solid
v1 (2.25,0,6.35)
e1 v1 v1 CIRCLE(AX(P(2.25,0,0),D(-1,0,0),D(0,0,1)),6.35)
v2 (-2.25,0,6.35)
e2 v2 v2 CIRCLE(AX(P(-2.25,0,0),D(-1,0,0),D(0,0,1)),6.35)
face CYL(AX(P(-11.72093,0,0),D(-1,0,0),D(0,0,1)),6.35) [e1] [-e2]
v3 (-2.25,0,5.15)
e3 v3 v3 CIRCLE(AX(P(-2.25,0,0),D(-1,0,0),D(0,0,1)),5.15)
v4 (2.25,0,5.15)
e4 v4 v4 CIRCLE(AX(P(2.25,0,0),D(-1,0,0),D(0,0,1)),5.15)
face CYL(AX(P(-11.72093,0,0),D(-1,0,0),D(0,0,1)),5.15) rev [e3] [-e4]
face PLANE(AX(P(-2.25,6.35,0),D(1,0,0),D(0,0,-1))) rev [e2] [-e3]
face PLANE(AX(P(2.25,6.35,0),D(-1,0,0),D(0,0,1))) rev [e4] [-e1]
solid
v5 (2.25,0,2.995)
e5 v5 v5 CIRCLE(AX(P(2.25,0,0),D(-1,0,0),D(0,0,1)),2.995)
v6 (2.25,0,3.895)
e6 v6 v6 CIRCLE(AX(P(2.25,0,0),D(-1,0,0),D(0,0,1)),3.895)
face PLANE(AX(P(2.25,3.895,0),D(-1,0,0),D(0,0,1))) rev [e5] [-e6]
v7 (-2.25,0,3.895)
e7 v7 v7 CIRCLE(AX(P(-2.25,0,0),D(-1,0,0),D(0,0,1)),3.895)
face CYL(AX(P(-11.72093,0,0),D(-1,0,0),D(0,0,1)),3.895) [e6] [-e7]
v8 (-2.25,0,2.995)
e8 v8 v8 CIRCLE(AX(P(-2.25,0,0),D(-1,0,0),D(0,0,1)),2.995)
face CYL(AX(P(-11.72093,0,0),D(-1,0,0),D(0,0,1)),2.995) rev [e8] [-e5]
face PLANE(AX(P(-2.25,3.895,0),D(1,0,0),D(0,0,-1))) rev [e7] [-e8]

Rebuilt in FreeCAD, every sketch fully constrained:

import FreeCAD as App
import Part
import Sketcher

doc = App.newDocument("Part")
params = doc.addObject("Spreadsheet::Sheet", "Params")
for row, (alias, value) in enumerate([
    ("sketch1_width", "4.5 mm"),
    ("sketch1_height", "1.2 mm"),
    ("sketch1_height2", "0.9 mm"),
    ("revolution_angle", "360 deg"),
], start=1):
    params.set(f"A{row}", alias)
    params.set(f"B{row}", "=" + value)
    params.setAlias(f"B{row}", alias)

body = doc.addObject("PartDesign::Body", "Body")
body.AllowCompound = True

sketch1 = body.newObject("Sketcher::SketchObject", "Sketch")
sketch1.AttachmentSupport = (doc.getObject("XY_Plane"), [""])
sketch1.MapMode = "FlatFace"
sketch1.addGeometry([
    Part.LineSegment(App.Vector(-2.25, 6.35, 0), App.Vector(-2.25, 5.15, 0)),
    Part.LineSegment(App.Vector(-2.25, 5.15, 0), App.Vector(2.25, 5.15, 0)),
    Part.LineSegment(App.Vector(2.25, 5.15, 0), App.Vector(2.25, 6.35, 0)),
    Part.LineSegment(App.Vector(2.25, 6.35, 0), App.Vector(-2.25, 6.35, 0)),
    Part.LineSegment(App.Vector(-2.25, 3.895, 0), App.Vector(-2.25, 2.995, 0)),
    Part.LineSegment(App.Vector(-2.25, 2.995, 0), App.Vector(2.25, 2.995, 0)),
    Part.LineSegment(App.Vector(2.25, 2.995, 0), App.Vector(2.25, 3.895, 0)),
    Part.LineSegment(App.Vector(2.25, 3.895, 0), App.Vector(-2.25, 3.895, 0)),
], False)
sketch1.addConstraint([
    Sketcher.Constraint("Coincident", 0, 2, 1, 1),
    Sketcher.Constraint("Coincident", 1, 2, 2, 1),
    Sketcher.Constraint("Coincident", 2, 2, 3, 1),
    Sketcher.Constraint("Coincident", 3, 2, 0, 1),
    Sketcher.Constraint("Coincident", 4, 2, 5, 1),
    Sketcher.Constraint("Coincident", 5, 2, 6, 1),
    Sketcher.Constraint("Coincident", 6, 2, 7, 1),
    Sketcher.Constraint("Coincident", 7, 2, 4, 1),
    Sketcher.Constraint("Vertical", 0),
    Sketcher.Constraint("Horizontal", 1),
    Sketcher.Constraint("Vertical", 2),
    Sketcher.Constraint("Horizontal", 3),
    Sketcher.Constraint("Vertical", 4),
    Sketcher.Constraint("Horizontal", 5),
    Sketcher.Constraint("Vertical", 6),
    Sketcher.Constraint("Horizontal", 7),
    Sketcher.Constraint("Vertical", 3, 2, 4, 2),
    Sketcher.Constraint("Vertical", 2, 2, 5, 2),
    Sketcher.Constraint("DistanceX", 1, 1, 1, 2, 4.5),
    Sketcher.Constraint("DistanceY", 0, 2, 0, 1, 1.2),
    Sketcher.Constraint("DistanceY", 4, 2, 4, 1, 0.9),
    Sketcher.Constraint("DistanceX", 0, 2, -1, 1, 2.25),
    Sketcher.Constraint("DistanceY", -1, 1, 0, 2, 5.15),
    Sketcher.Constraint("DistanceY", -1, 1, 4, 2, 2.995),
])
sketch1.setExpression("Constraints[18]", "Params.sketch1_width")
sketch1.setExpression("Constraints[19]", "Params.sketch1_height")
sketch1.setExpression("Constraints[20]", "Params.sketch1_height2")
revolution = body.newObject("PartDesign::Revolution", "Revolution")
revolution.Profile = sketch1
revolution.ReferenceAxis = (sketch1, ["H_Axis"])
revolution.setExpression("Angle", "Params.revolution_angle")

doc.recompute()
